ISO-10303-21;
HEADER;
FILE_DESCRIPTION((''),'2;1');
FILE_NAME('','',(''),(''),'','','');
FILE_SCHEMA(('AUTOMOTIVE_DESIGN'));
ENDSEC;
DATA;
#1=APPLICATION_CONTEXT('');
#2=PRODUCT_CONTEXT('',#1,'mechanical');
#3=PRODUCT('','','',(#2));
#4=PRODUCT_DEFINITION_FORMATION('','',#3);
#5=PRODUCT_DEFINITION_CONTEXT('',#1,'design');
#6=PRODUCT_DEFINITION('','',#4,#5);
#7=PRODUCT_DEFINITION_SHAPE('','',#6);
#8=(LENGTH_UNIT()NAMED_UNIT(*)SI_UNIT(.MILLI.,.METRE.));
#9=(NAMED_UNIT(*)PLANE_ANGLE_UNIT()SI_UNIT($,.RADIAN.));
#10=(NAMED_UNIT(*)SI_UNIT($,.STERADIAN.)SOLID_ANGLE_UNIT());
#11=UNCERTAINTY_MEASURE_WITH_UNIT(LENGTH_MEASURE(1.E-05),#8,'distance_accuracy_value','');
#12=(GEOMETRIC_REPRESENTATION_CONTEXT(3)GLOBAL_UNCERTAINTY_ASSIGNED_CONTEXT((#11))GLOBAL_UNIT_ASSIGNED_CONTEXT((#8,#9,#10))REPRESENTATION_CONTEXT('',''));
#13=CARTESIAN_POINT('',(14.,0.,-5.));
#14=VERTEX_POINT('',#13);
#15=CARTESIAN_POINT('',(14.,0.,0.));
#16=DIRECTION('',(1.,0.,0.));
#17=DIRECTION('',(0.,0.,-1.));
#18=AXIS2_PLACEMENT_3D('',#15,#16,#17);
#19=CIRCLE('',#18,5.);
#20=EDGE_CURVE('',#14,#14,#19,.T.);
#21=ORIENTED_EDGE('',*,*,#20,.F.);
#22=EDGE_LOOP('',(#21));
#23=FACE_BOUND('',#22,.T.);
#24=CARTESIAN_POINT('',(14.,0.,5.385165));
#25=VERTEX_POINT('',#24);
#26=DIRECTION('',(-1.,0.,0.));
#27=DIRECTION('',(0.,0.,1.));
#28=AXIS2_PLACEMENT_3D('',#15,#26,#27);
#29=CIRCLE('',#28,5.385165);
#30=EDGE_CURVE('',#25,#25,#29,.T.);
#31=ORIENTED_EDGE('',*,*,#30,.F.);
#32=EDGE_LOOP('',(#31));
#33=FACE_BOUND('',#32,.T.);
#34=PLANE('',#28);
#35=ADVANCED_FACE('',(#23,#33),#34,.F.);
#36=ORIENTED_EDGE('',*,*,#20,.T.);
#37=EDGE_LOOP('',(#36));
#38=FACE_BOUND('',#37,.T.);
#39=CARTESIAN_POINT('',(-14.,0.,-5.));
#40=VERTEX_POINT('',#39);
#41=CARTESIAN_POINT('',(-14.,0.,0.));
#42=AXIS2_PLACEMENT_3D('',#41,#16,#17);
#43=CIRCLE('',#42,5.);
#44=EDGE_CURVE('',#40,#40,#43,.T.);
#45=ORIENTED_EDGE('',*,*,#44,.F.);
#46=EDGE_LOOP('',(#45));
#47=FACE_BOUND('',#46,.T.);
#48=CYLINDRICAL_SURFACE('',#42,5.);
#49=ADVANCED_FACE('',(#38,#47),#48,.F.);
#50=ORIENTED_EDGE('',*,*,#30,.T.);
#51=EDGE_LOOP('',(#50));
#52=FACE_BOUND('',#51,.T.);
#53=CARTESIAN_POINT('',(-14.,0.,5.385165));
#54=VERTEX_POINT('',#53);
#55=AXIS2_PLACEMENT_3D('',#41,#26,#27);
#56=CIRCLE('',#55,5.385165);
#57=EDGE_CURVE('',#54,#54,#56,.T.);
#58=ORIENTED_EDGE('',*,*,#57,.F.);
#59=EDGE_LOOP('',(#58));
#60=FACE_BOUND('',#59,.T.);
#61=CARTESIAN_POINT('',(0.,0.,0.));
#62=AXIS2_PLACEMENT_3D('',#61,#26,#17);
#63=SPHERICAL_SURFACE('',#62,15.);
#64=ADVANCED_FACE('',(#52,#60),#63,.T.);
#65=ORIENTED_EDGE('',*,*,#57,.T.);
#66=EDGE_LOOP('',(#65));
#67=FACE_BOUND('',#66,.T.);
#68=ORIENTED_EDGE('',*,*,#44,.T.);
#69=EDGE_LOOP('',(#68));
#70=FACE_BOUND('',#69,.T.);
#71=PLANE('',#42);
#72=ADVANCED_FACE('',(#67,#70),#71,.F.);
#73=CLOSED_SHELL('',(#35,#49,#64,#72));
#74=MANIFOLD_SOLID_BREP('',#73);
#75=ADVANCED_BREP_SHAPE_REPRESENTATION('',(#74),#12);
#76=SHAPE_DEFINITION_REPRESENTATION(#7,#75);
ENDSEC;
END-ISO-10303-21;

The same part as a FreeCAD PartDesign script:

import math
import FreeCAD as App
import Part
import Sketcher

doc = App.newDocument("Part")
body = doc.addObject("PartDesign::Body", "Body")

# Sketch on XZ plane
sketch1 = body.newObject("Sketcher::SketchObject", "Sketch")
sketch1.AttachmentSupport = (doc.getObject("XZ_Plane"), [""])
sketch1.MapMode = "FlatFace"
sketch1.addGeometry([
    Part.LineSegment(App.Vector(-14, -5, 0), App.Vector(-14, 0, 0)),
    Part.LineSegment(App.Vector(-14, 0, 0), App.Vector(14, 0, 0)),
    Part.LineSegment(App.Vector(14, 0, 0), App.Vector(14, -5, 0)),
    Part.ArcOfCircle(Part.Circle(App.Vector(0, 0, 0), App.Vector(0, 0, 1), 15), math.radians(-159), math.radians(-21)),
], False)
sketch1.addConstraint([
    Sketcher.Constraint("Coincident", 0, 2, 1, 1),
    Sketcher.Constraint("Coincident", 1, 2, 2, 1),
    Sketcher.Constraint("Coincident", 2, 2, 3, 2),
    Sketcher.Constraint("Coincident", 3, 1, 0, 1),
    Sketcher.Constraint("Vertical", 0),
    Sketcher.Constraint("Horizontal", 1),
    Sketcher.Constraint("Vertical", 2),
    Sketcher.Constraint("Coincident", 3, 3, -1, 1),
    Sketcher.Constraint("Symmetric", 0, 2, 1, 2, -1, 1),
    Sketcher.Constraint("Radius", 3, 15.0),
    Sketcher.Constraint("DistanceX", 1, 1, 1, 2, 28.0),
])
revolution = body.newObject("PartDesign::Revolution", "Revolution")
revolution.Profile = sketch1
revolution.ReferenceAxis = (sketch1, ["H_Axis"])
revolution.Angle = 360

# Sketch on YZ plane
sketch2 = body.newObject("Sketcher::SketchObject", "Sketch001")
sketch2.AttachmentSupport = (doc.getObject("YZ_Plane"), [""])
sketch2.MapMode = "FlatFace"
sketch2.AttachmentOffset = App.Placement(App.Vector(0, 0, 14), App.Rotation())
sketch2.addGeometry(Part.Circle(App.Vector(0, 0, 0), App.Vector(0, 0, 1), 5), False)
sketch2.addConstraint([
    Sketcher.Constraint("Coincident", 0, 3, -1, 1),
    Sketcher.Constraint("Diameter", 0, 10.0),
])
pocket1 = body.newObject("PartDesign::Pocket", "Pocket")
pocket1.Profile = sketch2
pocket1.Type = "ThroughAll"

doc.recompute()
